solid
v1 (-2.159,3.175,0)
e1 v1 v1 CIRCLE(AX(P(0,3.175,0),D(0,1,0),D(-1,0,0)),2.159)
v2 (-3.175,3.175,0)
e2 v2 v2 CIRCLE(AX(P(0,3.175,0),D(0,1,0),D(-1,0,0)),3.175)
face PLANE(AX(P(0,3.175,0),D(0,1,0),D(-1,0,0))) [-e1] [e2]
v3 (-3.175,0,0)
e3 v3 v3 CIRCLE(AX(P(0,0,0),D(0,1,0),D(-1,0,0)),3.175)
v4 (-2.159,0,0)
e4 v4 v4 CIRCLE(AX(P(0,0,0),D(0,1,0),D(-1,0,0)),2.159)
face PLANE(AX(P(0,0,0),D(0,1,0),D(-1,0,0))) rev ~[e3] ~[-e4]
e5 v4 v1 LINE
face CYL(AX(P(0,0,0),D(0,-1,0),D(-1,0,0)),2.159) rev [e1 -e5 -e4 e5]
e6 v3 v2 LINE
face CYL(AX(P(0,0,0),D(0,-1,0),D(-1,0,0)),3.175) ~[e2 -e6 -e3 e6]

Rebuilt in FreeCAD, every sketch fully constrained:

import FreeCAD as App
import Part
import Sketcher
from FreeCAD import Vector
Q = App.Units.Quantity

doc = App.newDocument("Part")
body = doc.addObject("PartDesign::Body", "Body")

sketch1 = body.newObject("Sketcher::SketchObject", "Sketch")
sketch1.AttachmentSupport = (doc.getObject("XZ_Plane"), [""])
sketch1.MapMode = "FlatFace"
sketch1.addGeometry([
    Part.Circle(Vector(0, 0, 0), Vector(0, 0, 1), 3.175),
    Part.Circle(Vector(0, 0, 0), Vector(0, 0, 1), 2.159),
], False)
sketch1.addConstraint([
    Sketcher.Constraint("Coincident", 0, 3, -1, 1),
    Sketcher.Constraint("Coincident", 1, 3, -1, 1),
    Sketcher.Constraint("Diameter", 0, Q("0.25 in")),
    Sketcher.Constraint("Diameter", 1, Q("0.17 in")),
])
pad1 = body.newObject("PartDesign::Pad", "Pad")
pad1.Profile = sketch1
pad1.Length = Q("0.125 in")
pad1.Reversed = True

doc.recompute()
